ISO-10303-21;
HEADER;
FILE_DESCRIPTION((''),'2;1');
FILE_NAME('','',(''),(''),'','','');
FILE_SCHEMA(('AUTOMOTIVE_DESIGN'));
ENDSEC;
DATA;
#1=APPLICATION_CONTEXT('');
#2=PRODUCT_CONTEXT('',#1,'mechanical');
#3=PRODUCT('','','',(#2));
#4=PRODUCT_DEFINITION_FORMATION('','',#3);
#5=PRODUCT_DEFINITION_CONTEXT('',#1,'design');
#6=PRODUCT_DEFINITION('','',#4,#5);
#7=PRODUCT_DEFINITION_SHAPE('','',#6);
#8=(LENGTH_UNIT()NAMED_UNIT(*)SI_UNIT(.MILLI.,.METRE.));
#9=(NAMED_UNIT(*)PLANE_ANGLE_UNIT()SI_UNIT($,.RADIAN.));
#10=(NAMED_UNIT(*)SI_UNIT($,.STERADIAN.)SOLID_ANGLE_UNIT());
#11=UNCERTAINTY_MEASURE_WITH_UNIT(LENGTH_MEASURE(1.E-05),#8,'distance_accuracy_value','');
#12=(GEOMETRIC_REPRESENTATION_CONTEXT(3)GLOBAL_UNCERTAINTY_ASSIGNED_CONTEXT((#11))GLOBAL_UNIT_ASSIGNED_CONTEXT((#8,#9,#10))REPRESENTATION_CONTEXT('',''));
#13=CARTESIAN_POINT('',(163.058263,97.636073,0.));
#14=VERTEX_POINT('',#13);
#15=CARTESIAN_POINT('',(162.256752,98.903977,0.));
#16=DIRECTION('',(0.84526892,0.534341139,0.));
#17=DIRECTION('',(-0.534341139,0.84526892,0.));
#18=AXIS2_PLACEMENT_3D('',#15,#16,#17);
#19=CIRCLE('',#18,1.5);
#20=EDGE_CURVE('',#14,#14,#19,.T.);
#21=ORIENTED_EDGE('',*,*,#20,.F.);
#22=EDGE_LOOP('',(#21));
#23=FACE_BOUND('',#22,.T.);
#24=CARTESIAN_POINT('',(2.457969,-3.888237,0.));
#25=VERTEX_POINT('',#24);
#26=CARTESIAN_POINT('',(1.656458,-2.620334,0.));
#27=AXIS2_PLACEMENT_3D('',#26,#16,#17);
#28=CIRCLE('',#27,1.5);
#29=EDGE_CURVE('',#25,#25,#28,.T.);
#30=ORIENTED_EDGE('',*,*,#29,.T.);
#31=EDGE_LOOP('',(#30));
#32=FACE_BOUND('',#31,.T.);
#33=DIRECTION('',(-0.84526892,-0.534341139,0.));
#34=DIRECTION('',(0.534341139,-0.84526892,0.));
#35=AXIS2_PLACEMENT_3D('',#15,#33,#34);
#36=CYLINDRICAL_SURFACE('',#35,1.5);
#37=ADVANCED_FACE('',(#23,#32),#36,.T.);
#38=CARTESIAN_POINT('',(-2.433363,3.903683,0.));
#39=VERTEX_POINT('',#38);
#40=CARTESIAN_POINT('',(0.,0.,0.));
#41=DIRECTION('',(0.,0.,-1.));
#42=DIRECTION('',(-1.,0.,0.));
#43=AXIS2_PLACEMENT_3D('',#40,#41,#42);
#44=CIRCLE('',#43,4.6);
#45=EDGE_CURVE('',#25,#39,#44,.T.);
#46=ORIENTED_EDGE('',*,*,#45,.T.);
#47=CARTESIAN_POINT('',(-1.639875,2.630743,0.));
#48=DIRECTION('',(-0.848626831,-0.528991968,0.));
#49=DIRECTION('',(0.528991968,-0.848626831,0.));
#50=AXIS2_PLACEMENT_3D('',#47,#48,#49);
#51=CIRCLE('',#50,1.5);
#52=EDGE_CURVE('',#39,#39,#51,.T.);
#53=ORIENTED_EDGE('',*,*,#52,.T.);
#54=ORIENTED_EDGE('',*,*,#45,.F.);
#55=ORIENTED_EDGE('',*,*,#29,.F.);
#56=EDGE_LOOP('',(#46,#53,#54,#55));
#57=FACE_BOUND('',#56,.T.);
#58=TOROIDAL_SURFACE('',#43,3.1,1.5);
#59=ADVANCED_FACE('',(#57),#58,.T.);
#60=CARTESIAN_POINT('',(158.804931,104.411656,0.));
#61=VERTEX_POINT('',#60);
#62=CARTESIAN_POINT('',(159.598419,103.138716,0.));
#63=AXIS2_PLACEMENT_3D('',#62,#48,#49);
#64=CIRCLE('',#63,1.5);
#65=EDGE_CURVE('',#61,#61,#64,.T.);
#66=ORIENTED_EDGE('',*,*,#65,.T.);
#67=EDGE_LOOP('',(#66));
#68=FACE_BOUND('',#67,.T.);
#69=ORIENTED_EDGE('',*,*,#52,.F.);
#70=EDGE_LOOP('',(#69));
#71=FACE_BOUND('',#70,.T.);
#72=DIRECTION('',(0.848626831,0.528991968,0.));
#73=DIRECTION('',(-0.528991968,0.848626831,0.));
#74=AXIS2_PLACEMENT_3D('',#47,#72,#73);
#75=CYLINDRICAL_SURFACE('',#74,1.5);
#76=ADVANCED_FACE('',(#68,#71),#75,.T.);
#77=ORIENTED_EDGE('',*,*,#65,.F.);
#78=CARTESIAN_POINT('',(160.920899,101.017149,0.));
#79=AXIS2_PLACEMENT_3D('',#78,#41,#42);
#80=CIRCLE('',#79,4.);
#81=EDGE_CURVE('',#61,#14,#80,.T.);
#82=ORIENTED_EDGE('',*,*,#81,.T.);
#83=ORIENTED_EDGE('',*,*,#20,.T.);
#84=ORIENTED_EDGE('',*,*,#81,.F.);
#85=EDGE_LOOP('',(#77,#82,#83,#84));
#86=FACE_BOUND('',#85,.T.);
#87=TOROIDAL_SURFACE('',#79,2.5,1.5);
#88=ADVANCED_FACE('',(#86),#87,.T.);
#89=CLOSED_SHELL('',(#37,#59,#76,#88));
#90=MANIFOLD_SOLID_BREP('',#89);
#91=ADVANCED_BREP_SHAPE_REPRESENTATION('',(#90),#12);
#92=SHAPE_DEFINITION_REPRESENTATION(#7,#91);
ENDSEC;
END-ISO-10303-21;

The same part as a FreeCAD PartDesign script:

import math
import FreeCAD as App
import Part
import Sketcher

doc = App.newDocument("Part")
body = doc.addObject("PartDesign::Body", "Body")

# Sketch on an angled plane
sketch1 = body.newObject("Sketcher::SketchObject", "Sketch")
sketch1.Placement = App.Placement(App.Vector(-1.639875, 2.630743, 0), App.Rotation(App.Vector(-0.528991968, 0.848626831, 0), App.Vector(0, 0, 1.000000001), App.Vector(0.848626831, 0.528991968, 0), "ZXY"))
sketch1.addGeometry(Part.Circle(App.Vector(0, 0, 0), App.Vector(0, 0, 1), 1.5), False)
sketch1.addConstraint([
    Sketcher.Constraint("Coincident", 0, 3, -1, 1),
    Sketcher.Constraint("Diameter", 0, 3.0),
])

# Sketch on XY plane
sketch2 = body.newObject("Sketcher::SketchObject", "Sketch001")
sketch2.AttachmentSupport = (doc.getObject("XY_Plane"), [""])
sketch2.MapMode = "FlatFace"
sketch2.addGeometry([
    Part.LineSegment(App.Vector(-1.639875, 2.630743, 0), App.Vector(159.598419, 103.138716, 0)),
    Part.ArcOfCircle(Part.Circle(App.Vector(160.920899, 101.017149, 0), App.Vector(0, 0, 1), 2.5), math.radians(-57.70076), math.radians(121.937371)),
    Part.LineSegment(App.Vector(162.256752, 98.903977, 0), App.Vector(1.656458, -2.620334, 0)),
    Part.ArcOfCircle(Part.Circle(App.Vector(0, 0, 0), App.Vector(0, 0, 1), 3.1), math.radians(121.937371), math.radians(302.29924)),
], False)
sketch2.addConstraint([
    Sketcher.Constraint("Tangent", 0, 2, 1, 2),
    Sketcher.Constraint("Tangent", 1, 1, 2, 1),
    Sketcher.Constraint("Tangent", 2, 2, 3, 2),
    Sketcher.Constraint("Tangent", 3, 1, 0, 1),
    Sketcher.Constraint("Coincident", 3, 3, -1, 1),
    Sketcher.Constraint("Radius", 1, 2.5),
    Sketcher.Constraint("Radius", 3, 3.1),
    Sketcher.Constraint("DistanceX", -1, 1, 1, 3, 160.920899),
    Sketcher.Constraint("DistanceY", -1, 1, 1, 3, 101.017149),
])
doc.recompute()

additivepipe = body.newObject("PartDesign::AdditivePipe", "AdditivePipe")
additivepipe.Profile = sketch1
additivepipe.Spine = (sketch2, ["Edge1", "Edge2", "Edge3", "Edge4"])

doc.recompute()
